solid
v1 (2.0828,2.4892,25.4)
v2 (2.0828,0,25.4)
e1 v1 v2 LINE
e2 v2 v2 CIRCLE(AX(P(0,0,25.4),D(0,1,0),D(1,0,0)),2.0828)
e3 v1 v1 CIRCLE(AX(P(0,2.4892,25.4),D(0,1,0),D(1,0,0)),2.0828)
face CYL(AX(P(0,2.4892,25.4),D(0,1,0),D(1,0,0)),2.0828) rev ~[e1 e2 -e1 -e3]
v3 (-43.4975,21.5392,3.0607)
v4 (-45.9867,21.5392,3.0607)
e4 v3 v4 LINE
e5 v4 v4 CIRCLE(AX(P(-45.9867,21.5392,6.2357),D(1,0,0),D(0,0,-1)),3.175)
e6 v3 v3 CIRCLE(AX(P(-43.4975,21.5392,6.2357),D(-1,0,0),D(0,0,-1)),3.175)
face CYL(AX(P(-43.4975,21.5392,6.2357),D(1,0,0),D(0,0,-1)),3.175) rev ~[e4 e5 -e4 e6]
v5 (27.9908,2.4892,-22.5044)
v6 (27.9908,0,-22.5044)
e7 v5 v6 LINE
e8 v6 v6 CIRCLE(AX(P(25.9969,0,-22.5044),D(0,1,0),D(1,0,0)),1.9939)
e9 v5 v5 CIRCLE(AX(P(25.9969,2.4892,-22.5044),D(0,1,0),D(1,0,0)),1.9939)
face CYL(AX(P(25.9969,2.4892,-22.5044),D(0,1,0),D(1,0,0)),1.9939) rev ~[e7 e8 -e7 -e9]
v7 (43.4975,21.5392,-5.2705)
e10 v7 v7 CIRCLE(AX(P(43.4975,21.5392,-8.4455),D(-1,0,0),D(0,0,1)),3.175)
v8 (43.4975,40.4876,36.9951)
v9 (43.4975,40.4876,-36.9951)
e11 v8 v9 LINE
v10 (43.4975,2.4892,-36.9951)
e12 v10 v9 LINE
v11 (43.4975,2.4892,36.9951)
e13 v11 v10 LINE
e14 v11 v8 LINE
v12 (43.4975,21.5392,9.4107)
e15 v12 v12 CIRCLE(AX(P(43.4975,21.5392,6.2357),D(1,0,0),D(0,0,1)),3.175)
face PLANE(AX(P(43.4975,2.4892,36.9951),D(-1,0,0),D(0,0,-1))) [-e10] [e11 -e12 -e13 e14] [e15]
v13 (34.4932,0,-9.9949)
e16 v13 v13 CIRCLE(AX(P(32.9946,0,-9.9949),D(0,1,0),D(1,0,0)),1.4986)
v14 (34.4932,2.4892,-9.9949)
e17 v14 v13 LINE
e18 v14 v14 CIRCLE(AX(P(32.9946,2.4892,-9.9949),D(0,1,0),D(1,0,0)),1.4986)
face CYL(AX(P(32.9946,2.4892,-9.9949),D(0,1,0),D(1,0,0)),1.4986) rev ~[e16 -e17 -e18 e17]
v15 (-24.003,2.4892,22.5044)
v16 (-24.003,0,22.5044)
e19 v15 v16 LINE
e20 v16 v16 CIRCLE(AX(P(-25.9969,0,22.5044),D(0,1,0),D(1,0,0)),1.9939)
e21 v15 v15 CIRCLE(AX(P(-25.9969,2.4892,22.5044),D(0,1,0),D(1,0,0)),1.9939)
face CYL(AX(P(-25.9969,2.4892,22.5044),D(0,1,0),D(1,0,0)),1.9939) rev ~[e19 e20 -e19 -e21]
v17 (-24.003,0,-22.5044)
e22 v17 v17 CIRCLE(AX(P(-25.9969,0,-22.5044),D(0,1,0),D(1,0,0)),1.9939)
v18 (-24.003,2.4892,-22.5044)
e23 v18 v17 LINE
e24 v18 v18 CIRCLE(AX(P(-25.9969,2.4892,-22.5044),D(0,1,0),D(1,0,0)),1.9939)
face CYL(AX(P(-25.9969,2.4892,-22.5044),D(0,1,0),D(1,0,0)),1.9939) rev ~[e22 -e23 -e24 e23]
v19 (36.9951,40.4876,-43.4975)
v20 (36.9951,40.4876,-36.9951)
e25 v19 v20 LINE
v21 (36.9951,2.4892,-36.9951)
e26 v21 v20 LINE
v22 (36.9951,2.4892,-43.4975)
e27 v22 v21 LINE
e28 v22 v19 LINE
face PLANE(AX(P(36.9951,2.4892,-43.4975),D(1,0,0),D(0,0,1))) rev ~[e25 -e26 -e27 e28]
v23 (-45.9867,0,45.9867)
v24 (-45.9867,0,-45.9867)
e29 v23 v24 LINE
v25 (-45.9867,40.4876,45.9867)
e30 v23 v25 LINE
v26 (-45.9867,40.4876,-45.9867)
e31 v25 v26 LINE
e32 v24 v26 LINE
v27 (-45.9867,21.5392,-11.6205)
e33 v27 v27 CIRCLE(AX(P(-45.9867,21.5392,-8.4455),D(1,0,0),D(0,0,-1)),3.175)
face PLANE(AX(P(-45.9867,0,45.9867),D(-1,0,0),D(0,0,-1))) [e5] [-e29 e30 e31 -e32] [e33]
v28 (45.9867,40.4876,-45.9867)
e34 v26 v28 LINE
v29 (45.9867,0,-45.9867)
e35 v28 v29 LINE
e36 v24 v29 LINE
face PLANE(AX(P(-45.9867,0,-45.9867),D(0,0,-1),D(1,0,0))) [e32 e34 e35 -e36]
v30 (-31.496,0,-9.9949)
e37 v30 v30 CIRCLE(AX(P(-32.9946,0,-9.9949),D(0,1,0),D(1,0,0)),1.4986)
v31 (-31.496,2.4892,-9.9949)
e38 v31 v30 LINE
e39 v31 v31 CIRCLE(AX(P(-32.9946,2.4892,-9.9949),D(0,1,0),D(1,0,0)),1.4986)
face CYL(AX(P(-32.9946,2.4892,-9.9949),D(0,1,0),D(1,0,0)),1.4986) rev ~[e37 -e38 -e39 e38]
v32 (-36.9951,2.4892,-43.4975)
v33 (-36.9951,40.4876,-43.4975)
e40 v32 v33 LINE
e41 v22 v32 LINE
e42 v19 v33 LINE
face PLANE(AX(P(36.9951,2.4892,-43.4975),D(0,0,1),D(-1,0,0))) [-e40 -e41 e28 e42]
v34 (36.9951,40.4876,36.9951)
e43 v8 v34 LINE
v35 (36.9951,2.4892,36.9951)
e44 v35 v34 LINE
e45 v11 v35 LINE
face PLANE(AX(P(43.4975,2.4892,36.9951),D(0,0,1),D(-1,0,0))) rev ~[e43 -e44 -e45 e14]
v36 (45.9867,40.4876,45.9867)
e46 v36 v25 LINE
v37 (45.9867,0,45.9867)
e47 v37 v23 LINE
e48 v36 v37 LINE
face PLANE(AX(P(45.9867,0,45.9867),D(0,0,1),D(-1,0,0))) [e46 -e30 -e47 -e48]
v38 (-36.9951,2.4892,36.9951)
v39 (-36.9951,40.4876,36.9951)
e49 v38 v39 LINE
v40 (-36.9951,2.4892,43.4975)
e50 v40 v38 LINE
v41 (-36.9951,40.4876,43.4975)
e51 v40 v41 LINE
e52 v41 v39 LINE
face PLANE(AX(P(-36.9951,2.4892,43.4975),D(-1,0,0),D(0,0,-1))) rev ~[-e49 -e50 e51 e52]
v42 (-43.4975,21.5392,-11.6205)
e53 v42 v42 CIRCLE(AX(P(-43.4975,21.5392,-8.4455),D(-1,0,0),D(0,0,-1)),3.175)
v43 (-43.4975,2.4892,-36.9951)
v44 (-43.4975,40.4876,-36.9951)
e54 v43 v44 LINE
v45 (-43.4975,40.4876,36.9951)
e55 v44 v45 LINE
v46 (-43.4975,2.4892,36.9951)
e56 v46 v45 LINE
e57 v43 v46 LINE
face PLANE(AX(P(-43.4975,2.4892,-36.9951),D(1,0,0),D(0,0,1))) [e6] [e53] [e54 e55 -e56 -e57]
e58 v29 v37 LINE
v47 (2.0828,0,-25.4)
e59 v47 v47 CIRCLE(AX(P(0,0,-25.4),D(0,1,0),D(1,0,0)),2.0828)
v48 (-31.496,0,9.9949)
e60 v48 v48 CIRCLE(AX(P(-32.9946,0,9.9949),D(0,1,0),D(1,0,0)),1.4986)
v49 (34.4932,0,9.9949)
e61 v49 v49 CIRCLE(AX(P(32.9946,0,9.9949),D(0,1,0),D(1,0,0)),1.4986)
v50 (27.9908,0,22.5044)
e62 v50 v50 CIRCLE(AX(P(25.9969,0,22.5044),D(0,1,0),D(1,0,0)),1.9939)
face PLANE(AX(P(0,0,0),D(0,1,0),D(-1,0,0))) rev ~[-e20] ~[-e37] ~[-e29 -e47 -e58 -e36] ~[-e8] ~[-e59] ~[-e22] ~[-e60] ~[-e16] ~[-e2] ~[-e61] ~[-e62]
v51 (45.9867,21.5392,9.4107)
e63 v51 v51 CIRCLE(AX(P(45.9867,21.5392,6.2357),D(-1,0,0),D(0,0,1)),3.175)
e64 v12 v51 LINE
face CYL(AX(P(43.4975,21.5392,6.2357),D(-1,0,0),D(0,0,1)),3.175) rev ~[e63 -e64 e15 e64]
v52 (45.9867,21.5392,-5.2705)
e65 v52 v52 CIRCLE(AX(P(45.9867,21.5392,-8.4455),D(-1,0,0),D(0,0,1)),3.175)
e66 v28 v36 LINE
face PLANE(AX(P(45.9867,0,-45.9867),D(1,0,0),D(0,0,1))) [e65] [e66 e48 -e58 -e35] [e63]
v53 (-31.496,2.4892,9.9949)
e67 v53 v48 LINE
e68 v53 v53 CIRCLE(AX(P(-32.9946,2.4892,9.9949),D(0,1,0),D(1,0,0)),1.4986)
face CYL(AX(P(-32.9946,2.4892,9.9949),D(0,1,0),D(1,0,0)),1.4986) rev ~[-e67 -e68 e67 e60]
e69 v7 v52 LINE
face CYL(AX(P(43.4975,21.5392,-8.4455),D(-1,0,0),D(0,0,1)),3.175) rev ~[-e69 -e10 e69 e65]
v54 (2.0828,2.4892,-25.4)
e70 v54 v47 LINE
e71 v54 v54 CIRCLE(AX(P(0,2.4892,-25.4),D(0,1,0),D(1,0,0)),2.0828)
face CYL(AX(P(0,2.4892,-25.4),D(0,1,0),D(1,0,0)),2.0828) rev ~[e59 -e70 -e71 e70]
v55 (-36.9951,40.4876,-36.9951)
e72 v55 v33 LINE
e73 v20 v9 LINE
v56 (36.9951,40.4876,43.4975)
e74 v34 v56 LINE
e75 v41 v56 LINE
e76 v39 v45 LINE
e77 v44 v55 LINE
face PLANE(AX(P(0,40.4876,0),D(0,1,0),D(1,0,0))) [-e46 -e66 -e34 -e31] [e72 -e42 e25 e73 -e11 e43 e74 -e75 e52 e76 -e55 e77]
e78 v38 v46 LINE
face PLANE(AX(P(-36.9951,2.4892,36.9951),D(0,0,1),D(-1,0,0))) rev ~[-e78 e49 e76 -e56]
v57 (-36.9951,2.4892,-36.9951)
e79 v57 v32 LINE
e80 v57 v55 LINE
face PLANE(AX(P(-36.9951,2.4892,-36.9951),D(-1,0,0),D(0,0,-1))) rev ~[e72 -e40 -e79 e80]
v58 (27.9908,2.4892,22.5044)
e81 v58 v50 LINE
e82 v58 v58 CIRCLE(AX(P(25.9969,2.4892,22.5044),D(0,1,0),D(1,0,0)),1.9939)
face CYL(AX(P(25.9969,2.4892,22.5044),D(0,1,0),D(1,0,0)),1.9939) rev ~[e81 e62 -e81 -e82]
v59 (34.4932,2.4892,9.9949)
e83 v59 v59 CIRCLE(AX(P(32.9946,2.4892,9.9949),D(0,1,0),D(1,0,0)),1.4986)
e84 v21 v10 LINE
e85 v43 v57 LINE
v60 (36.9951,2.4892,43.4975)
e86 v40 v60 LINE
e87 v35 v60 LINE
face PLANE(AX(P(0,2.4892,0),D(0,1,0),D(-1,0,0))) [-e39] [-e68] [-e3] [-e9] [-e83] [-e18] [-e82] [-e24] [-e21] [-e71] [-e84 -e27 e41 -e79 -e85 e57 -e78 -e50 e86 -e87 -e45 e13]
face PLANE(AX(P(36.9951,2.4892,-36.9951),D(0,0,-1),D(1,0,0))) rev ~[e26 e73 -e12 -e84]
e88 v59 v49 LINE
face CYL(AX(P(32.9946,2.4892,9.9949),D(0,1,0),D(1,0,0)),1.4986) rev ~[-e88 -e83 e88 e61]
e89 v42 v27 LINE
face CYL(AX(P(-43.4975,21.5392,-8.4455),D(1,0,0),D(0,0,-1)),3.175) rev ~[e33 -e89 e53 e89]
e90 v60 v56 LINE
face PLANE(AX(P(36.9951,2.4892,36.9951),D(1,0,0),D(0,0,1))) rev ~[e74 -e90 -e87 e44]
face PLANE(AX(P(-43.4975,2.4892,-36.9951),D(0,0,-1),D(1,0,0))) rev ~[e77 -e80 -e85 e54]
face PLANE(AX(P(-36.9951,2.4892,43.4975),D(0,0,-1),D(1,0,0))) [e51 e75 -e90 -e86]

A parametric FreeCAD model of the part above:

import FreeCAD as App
import Part
import Sketcher
Q = App.Units.Quantity


def add_polygon(sketch, points):
    """Adds a closed chain of lines whose ends are joined by coincident constraints."""
    first, n = sketch.GeometryCount, len(points)
    for a, b in zip(points, points[1:] + points[:1]):
        sketch.addGeometry(Part.LineSegment(App.Vector(*a, 0), App.Vector(*b, 0)), False)
    for i in range(n):
        sketch.addConstraint(Sketcher.Constraint("Coincident", first + i, 2, first + (i + 1) % n, 1))

doc = App.newDocument("Part")
body = doc.addObject("PartDesign::Body", "Body")

# Sketch on XZ plane
sketch1 = doc.addObject("Sketcher::SketchObject", "Sketch")
body.addObject(sketch1)
sketch1.AttachmentSupport = (doc.XZ_Plane, [""])
sketch1.MapMode = "FlatFace"
add_polygon(sketch1, [(46, -46), (-46, -46), (-46, 46), (46, 46)])  # lines 0-3
sketch1.addConstraint([
    Sketcher.Constraint("Horizontal", 0),
    Sketcher.Constraint("Vertical", 1),
    Sketcher.Constraint("Horizontal", 2),
    Sketcher.Constraint("Vertical", 3),
    Sketcher.Constraint("Symmetric", 0, 2, 2, 2, -1, 1),
    Sketcher.Constraint("Equal", 2, 1),
    Sketcher.Constraint("DistanceX", 0, 2, 0, 1, Q("3.621 in")),
])
pad1 = doc.addObject("PartDesign::Pad", "Pad")
body.addObject(pad1)
pad1.Profile = sketch1
pad1.Length = Q("0.098 in")
pad1.Reversed = True

# Sketch on XZ plane
sketch2 = doc.addObject("Sketcher::SketchObject", "Sketch001")
body.addObject(sketch2)
sketch2.AttachmentSupport = (doc.XZ_Plane, [""])
sketch2.MapMode = "FlatFace"
sketch2.AttachmentOffset = App.Placement(App.Vector(0, 0, -0.098 * 25.4), App.Rotation())
add_polygon(sketch2, [(-46, -46), (-46, 46), (46, 46), (46, -46)])  # lines 0-3
add_polygon(sketch2, [(37, 43), (-37, 43), (-37, 37), (-43, 37), (-43, -37), (-37, -37), (-37, -43), (37, -43), (37, -37), (43, -37), (43, 37), (37, 37)])  # lines 4-15
sketch2.addConstraint([
    Sketcher.Constraint("Vertical", 0),
    Sketcher.Constraint("Horizontal", 1),
    Sketcher.Constraint("Vertical", 2),
    Sketcher.Constraint("Horizontal", 3),
    Sketcher.Constraint("Horizontal", 4),
    Sketcher.Constraint("Vertical", 5),
    Sketcher.Constraint("Horizontal", 6),
    Sketcher.Constraint("Vertical", 7),
    Sketcher.Constraint("Horizontal", 8),
    Sketcher.Constraint("Vertical", 9),
    Sketcher.Constraint("Horizontal", 10),
    Sketcher.Constraint("Vertical", 11),
    Sketcher.Constraint("Horizontal", 12),
    Sketcher.Constraint("Vertical", 13),
    Sketcher.Constraint("Horizontal", 14),
    Sketcher.Constraint("Vertical", 15),
    Sketcher.Constraint("Symmetric", 0, 2, 2, 2, -1, 1),
    Sketcher.Constraint("Symmetric", 4, 2, 10, 2, -1, 1),
    Sketcher.Constraint("Symmetric", 6, 2, 12, 2, -1, 1),
    Sketcher.Constraint("Symmetric", 8, 2, 14, 2, -1, 1),
    Sketcher.Constraint("Symmetric", 8, 2, 11, 2, -2),
    Sketcher.Constraint("Equal", 3, 0),
    Sketcher.Constraint("Equal", 14, 5),
    Sketcher.Constraint("Equal", 10, 7),
    Sketcher.Constraint("DistanceX", 0, 2, 4, 2, Q("0.354 in")),
    Sketcher.Constraint("DistanceX", 1, 1, 1, 2, Q("3.621 in")),
    Sketcher.Constraint("DistanceX", 6, 2, 6, 1, Q("0.256 in")),
])
pad2 = doc.addObject("PartDesign::Pad", "Pad001")
body.addObject(pad2)
pad2.Profile = sketch2
pad2.Length = Q("1.496 in")
pad2.Reversed = True

# Sketch on XZ plane
sketch3 = doc.addObject("Sketcher::SketchObject", "Sketch002")
body.addObject(sketch3)
sketch3.AttachmentSupport = (doc.XZ_Plane, [""])
sketch3.MapMode = "FlatFace"
sketch3.AttachmentOffset = App.Placement(App.Vector(0, 0, -0.098 * 25.4), App.Rotation())
sketch3.addGeometry([
    Part.Circle(App.Vector(-26, 22.5, 0), App.Vector(0, 0, 1), 2),  # 0
    Part.Circle(App.Vector(-26, -22.5, 0), App.Vector(0, 0, 1), 2),  # 1
    Part.Circle(App.Vector(26, -22.5, 0), App.Vector(0, 0, 1), 2),  # 2
    Part.Circle(App.Vector(26, 22.5, 0), App.Vector(0, 0, 1), 2),  # 3
    Part.Circle(App.Vector(-33, 10, 0), App.Vector(0, 0, 1), 1.5),  # 4
    Part.Circle(App.Vector(-33, -10, 0), App.Vector(0, 0, 1), 1.5),  # 5
    Part.Circle(App.Vector(33, 10, 0), App.Vector(0, 0, 1), 1.5),  # 6
    Part.Circle(App.Vector(33, -10, 0), App.Vector(0, 0, 1), 1.5),  # 7
    Part.Circle(App.Vector(0, 25.4, 0), App.Vector(0, 0, 1), 2.1),  # 8
    Part.Circle(App.Vector(0, -25.4, 0), App.Vector(0, 0, 1), 2.1),  # 9
], False)
sketch3.addConstraint([
    Sketcher.Constraint("Equal", 0, 1),
    Sketcher.Constraint("Equal", 1, 2),
    Sketcher.Constraint("Equal", 2, 3),
    Sketcher.Constraint("Equal", 4, 5),
    Sketcher.Constraint("Equal", 5, 6),
    Sketcher.Constraint("Equal", 6, 7),
    Sketcher.Constraint("Equal", 8, 9),
    Sketcher.Constraint("Symmetric", 0, 3, 2, 3, -1, 1),
    Sketcher.Constraint("Symmetric", 1, 3, 3, 3, -1, 1),
    Sketcher.Constraint("Symmetric", 5, 3, 6, 3, -1, 1),
    Sketcher.Constraint("Symmetric", 4, 3, 7, 3, -1, 1),
    Sketcher.Constraint("Symmetric", 8, 3, 9, 3, -1, 1),
    Sketcher.Constraint("Symmetric", 1, 3, 2, 3, -2),
    Sketcher.Constraint("Symmetric", 4, 3, 6, 3, -2),
    Sketcher.Constraint("PointOnObject", 8, 3, -2),
    Sketcher.Constraint("Diameter", 0, Q("0.157 in")),
    Sketcher.Constraint("Diameter", 4, Q("0.118 in")),
    Sketcher.Constraint("Diameter", 8, Q("0.164 in")),
    Sketcher.Constraint("DistanceY", -1, 1, 8, 3, Q("1 in")),
    Sketcher.Constraint("DistanceY", 1, 3, 0, 3, Q("1.772 in")),
    Sketcher.Constraint("DistanceX", 1, 3, 2, 3, Q("2.047 in")),
    Sketcher.Constraint("DistanceY", 5, 3, 4, 3, Q("0.787 in")),
    Sketcher.Constraint("DistanceX", 4, 3, 6, 3, Q("2.598 in")),
])
pocket1 = doc.addObject("PartDesign::Pocket", "Pocket")
body.addObject(pocket1)
pocket1.Profile = sketch3
pocket1.Type = "ThroughAll"
pocket1.Reversed = True

# Sketch on YZ plane
sketch4 = doc.addObject("Sketcher::SketchObject", "Sketch003")
body.addObject(sketch4)
sketch4.AttachmentSupport = (doc.YZ_Plane, [""])
sketch4.MapMode = "FlatFace"
sketch4.AttachmentOffset = App.Placement(App.Vector(0, 0, -1.7125 * 25.4), App.Rotation())
sketch4.addGeometry([
    Part.Circle(App.Vector(21.5, 6.2, 0), App.Vector(0, 0, 1), 3.2),
    Part.Circle(App.Vector(21.5, -8.4, 0), App.Vector(0, 0, 1), 3.2),
], False)
sketch4.addConstraint([
    Sketcher.Constraint("Equal", 0, 1),
    Sketcher.Constraint("Vertical", 0, 3, 1, 3),
    Sketcher.Constraint("Diameter", 0, Q("0.25 in")),
    Sketcher.Constraint("DistanceY", 1, 3, 0, 3, Q("0.578 in")),
    Sketcher.Constraint("DistanceX", -1, 1, 0, 3, Q("0.848 in")),
    Sketcher.Constraint("DistanceY", -1, 1, 0, 3, Q("0.2455 in")),
])
pocket2 = doc.addObject("PartDesign::Pocket", "Pocket001")
body.addObject(pocket2)
pocket2.Profile = sketch4
pocket2.Type = "ThroughAll"

# Sketch on YZ plane
sketch5 = doc.addObject("Sketcher::SketchObject", "Sketch004")
body.addObject(sketch5)
sketch5.AttachmentSupport = (doc.YZ_Plane, [""])
sketch5.MapMode = "FlatFace"
sketch5.AttachmentOffset = App.Placement(App.Vector(0, 0, 1.7125 * 25.4), App.Rotation())
sketch5.addGeometry([
    Part.Circle(App.Vector(21.5, 6.2, 0), App.Vector(0, 0, 1), 3.2),
    Part.Circle(App.Vector(21.5, -8.4, 0), App.Vector(0, 0, 1), 3.2),
], False)
sketch5.addConstraint([
    Sketcher.Constraint("Equal", 0, 1),
    Sketcher.Constraint("Vertical", 0, 3, 1, 3),
    Sketcher.Constraint("Diameter", 0, Q("0.25 in")),
    Sketcher.Constraint("DistanceY", 1, 3, 0, 3, Q("0.578 in")),
    Sketcher.Constraint("DistanceX", -1, 1, 0, 3, Q("0.848 in")),
    Sketcher.Constraint("DistanceY", -1, 1, 0, 3, Q("0.2455 in")),
])
pocket3 = doc.addObject("PartDesign::Pocket", "Pocket002")
body.addObject(pocket3)
pocket3.Profile = sketch5
pocket3.Type = "ThroughAll"
pocket3.Reversed = True

doc.recompute()
